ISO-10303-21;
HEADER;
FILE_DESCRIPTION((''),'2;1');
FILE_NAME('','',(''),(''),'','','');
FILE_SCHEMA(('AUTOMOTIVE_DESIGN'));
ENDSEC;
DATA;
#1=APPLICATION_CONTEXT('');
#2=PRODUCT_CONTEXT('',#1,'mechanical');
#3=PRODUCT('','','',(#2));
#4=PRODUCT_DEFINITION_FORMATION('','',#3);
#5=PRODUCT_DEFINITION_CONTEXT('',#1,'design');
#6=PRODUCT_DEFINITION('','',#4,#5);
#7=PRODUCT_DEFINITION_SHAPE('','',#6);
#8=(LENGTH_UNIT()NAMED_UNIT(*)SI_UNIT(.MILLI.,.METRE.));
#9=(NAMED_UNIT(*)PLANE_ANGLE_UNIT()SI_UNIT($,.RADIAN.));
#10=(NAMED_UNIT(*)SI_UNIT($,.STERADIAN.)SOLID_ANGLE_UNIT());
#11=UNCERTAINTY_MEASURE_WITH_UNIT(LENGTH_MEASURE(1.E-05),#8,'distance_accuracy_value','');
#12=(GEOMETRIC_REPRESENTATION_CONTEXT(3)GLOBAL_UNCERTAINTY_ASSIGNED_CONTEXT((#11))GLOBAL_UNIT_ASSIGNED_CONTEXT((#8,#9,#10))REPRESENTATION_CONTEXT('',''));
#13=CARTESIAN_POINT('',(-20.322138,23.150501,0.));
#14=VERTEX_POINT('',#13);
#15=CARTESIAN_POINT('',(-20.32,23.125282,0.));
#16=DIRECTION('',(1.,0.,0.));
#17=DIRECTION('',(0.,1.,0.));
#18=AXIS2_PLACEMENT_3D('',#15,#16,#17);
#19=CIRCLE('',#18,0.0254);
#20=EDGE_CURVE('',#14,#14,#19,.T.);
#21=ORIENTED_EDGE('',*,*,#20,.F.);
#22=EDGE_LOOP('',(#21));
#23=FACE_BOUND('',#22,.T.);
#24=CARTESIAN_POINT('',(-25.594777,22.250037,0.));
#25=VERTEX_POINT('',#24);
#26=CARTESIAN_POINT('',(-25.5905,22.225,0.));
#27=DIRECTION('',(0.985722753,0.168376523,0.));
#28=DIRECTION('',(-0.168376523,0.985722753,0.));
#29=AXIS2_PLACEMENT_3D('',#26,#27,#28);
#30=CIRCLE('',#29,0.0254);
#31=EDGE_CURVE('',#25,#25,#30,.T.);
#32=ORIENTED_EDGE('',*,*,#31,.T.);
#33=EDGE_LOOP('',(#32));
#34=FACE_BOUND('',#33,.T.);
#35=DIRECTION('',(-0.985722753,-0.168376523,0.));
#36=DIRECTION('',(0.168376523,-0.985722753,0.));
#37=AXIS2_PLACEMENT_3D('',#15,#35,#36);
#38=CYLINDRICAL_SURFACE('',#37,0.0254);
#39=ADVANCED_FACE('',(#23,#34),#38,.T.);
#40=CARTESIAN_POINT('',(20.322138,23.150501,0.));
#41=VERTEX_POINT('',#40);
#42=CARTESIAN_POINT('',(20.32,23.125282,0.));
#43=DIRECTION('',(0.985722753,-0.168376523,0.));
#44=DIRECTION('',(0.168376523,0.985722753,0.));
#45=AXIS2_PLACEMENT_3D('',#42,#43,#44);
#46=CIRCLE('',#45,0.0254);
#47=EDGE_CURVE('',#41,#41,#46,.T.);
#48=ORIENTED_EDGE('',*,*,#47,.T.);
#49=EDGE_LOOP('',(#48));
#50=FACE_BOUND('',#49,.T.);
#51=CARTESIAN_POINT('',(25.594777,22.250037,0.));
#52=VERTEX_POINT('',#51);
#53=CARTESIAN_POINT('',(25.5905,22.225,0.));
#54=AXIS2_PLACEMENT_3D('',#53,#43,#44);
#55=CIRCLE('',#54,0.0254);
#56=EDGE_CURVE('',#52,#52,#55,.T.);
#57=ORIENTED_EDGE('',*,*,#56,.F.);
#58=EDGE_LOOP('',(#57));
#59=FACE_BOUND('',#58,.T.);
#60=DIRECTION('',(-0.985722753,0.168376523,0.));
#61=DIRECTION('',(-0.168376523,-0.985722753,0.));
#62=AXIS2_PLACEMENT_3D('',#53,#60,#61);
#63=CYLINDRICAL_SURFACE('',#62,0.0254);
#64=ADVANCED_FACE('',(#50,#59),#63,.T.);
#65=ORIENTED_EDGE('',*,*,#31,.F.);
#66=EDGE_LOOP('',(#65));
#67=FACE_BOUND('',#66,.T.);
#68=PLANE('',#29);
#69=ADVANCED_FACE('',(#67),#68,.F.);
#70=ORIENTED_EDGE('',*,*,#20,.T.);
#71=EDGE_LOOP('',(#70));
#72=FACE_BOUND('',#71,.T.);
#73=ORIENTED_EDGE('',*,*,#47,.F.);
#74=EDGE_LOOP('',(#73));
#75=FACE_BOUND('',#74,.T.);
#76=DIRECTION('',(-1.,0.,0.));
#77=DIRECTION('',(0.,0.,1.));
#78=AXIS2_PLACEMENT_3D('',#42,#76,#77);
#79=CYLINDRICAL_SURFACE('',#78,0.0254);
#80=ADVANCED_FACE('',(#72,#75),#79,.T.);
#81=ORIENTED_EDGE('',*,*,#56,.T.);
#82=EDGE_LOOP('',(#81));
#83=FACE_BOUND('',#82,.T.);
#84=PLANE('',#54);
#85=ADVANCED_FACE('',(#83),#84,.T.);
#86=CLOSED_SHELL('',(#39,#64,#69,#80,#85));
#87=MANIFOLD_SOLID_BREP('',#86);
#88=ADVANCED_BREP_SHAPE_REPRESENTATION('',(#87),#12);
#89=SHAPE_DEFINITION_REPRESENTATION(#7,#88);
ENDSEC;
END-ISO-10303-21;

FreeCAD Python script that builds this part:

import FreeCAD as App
import Part
import Sketcher

V = App.Vector
Q = App.Units.Quantity

doc = App.newDocument("Part")
body = doc.addObject("PartDesign::Body", "Body")

# Sketch on an angled plane
sketch1 = body.newObject("Sketcher::SketchObject", "Sketch")
sketch1.Placement = App.Placement(V(25.5905, 22.225, 0), App.Rotation(V(-0.168376523, -0.985722753, 0), V(0, 0, 0.999999999), V(-0.985722753, 0.168376523, 0), "ZXY"))
sketch1.addGeometry(Part.Circle(V(0, 0, 0), V(0, 0, 1), 0.0254), False)
sketch1.addConstraint(Sketcher.Constraint("Coincident", 0, 3, -1, 1))
sketch1.addConstraint(Sketcher.Constraint("Diameter", 0, Q("0.002 in")))

# Sketch on XY plane
sketch2 = body.newObject("Sketcher::SketchObject", "Sketch001")
sketch2.AttachmentSupport = (doc.getObject("XY_Plane"), [""])
sketch2.MapMode = "FlatFace"
sketch2.addGeometry(Part.LineSegment(V(25.5905, 22.225, 0), V(20.32, 23.125282, 0)), False)
sketch2.addGeometry(Part.LineSegment(V(20.32, 23.125282, 0), V(-20.32, 23.125282, 0)), False)
sketch2.addGeometry(Part.LineSegment(V(-20.32, 23.125282, 0), V(-25.5905, 22.225, 0)), False)
sketch2.addConstraint(Sketcher.Constraint("Coincident", 0, 2, 1, 1))
sketch2.addConstraint(Sketcher.Constraint("Coincident", 1, 2, 2, 1))
sketch2.addConstraint(Sketcher.Constraint("Horizontal", 1))
sketch2.addConstraint(Sketcher.Constraint("Symmetric", 0, 1, 2, 2, -2))
sketch2.addConstraint(Sketcher.Constraint("Equal", 0, 2))
sketch2.addConstraint(Sketcher.Constraint("DistanceX", 1, 2, 1, 1, Q("1.6 in")))
sketch2.addConstraint(Sketcher.Constraint("DistanceY", -1, 1, 0, 1, Q("0.875 in")))
sketch2.addConstraint(Sketcher.Constraint("DistanceX", 2, 2, 0, 1, Q("2.015 in")))
sketch2.addConstraint(Sketcher.Constraint("Distance", 0, Q("5.346838 mm")))
doc.recompute()

additivepipe = body.newObject("PartDesign::AdditivePipe", "AdditivePipe")
additivepipe.Profile = sketch1
additivepipe.Spine = (sketch2, ["Edge1", "Edge2", "Edge3"])
additivepipe.Transition = "Right corner"

doc.recompute()
